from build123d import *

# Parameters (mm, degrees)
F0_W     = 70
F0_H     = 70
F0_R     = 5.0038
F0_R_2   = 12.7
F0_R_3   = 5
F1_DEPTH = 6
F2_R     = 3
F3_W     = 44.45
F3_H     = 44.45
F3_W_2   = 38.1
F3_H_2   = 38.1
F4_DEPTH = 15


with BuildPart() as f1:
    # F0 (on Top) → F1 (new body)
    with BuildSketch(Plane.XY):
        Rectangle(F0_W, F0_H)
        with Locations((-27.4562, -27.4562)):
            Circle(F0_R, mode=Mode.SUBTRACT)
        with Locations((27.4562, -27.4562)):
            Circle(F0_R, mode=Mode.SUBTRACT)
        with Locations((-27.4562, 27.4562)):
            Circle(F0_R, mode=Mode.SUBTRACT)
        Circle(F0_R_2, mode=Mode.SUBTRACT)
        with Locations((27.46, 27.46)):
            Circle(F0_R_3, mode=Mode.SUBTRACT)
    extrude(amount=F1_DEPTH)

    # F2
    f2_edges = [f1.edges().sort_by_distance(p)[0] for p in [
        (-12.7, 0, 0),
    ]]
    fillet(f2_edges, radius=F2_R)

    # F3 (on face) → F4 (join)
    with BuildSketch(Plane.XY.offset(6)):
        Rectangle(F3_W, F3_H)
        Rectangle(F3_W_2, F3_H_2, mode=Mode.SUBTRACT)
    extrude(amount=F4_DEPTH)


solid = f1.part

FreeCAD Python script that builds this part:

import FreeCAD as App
import Part
import Sketcher


def edges_at(feature, points):
    """Names of the edges that pass closest to the given points."""
    edges = feature.Shape.Edges
    near = lambda p: min(range(len(edges)), key=lambda i: edges[i].distToShape(Part.Vertex(*p))[0])
    return sorted({f"Edge{near(p) + 1}" for p in points})


def add_polygon(sketch, points):
    """Adds a closed chain of lines whose ends are joined by coincident constraints."""
    first, n = sketch.GeometryCount, len(points)
    for a, b in zip(points, points[1:] + points[:1]):
        sketch.addGeometry(Part.LineSegment(App.Vector(*a, 0), App.Vector(*b, 0)), False)
    for i in range(n):
        sketch.addConstraint(Sketcher.Constraint("Coincident", first + i, 2, first + (i + 1) % n, 1))

doc = App.newDocument("Part")
params = doc.addObject("Spreadsheet::Sheet", "Params")
for row, (alias, value) in enumerate([
    ("sketch1_diameter", "10 mm"),
    ("sketch1_diameter2", "25.4 mm"),
    ("sketch1_width", "70 mm"),
    ("pad1_length", "6 mm"),
    ("fillet_radius", "3 mm"),
    ("sketch2_width", "38.1 mm"),
    ("sketch2_width2", "44.45 mm"),
    ("pad2_length", "15 mm"),
], start=1):
    params.set(f"A{row}", alias)
    params.set(f"B{row}", "=" + value)
    params.setAlias(f"B{row}", alias)

body = doc.addObject("PartDesign::Body", "Body")

# Sketch on XY plane
sketch1 = doc.addObject("Sketcher::SketchObject", "Sketch")
body.addObject(sketch1)
sketch1.AttachmentSupport = (doc.XY_Plane, [""])
sketch1.MapMode = "FlatFace"
add_polygon(sketch1, [(-35, 35), (-35, -35), (35, -35), (35, 35)])  # lines 0-3
sketch1.addGeometry(Part.Circle(App.Vector(-27, -27, 0), App.Vector(0, 0, 1), 5), False)  # 4
sketch1.addGeometry(Part.Circle(App.Vector(27, -27, 0), App.Vector(0, 0, 1), 5), False)  # 5
sketch1.addGeometry(Part.Circle(App.Vector(-27, 27, 0), App.Vector(0, 0, 1), 5), False)  # 6
sketch1.addGeometry(Part.Circle(App.Vector(0, 0, 0), App.Vector(0, 0, 1), 13), False)  # 7
sketch1.addGeometry(Part.Circle(App.Vector(27, 27, 0), App.Vector(0, 0, 1), 5), False)  # 8
sketch1.addConstraint([
    Sketcher.Constraint("Vertical", 0),
    Sketcher.Constraint("Horizontal", 1),
    Sketcher.Constraint("Vertical", 2),
    Sketcher.Constraint("Horizontal", 3),
    Sketcher.Constraint("Coincident", 7, 3, -1, 1),
    Sketcher.Constraint("Equal", 4, 5),
    Sketcher.Constraint("Equal", 5, 6),
    Sketcher.Constraint("Symmetric", 5, 3, 6, 3, -1, 1),
    Sketcher.Constraint("Symmetric", 0, 2, 2, 2, -1, 1),
    Sketcher.Constraint("Symmetric", 4, 3, 5, 3, -2),
    Sketcher.Constraint("Equal", 3, 0),
    Sketcher.Constraint("Diameter", 8, 10.0),
    Sketcher.Constraint("Diameter", 7, 25.4),
    Sketcher.Constraint("DistanceX", 1, 1, 1, 2, 70.0),
    Sketcher.Constraint("Diameter", 4, 10.0076),
    Sketcher.Constraint("DistanceX", -1, 1, 8, 3, 27.46),
    Sketcher.Constraint("DistanceY", -1, 1, 8, 3, 27.46),
    Sketcher.Constraint("DistanceX", 4, 3, -1, 1, 27.4562),
    Sketcher.Constraint("DistanceY", 4, 3, -1, 1, 27.4562),
])
sketch1.setExpression("Constraints[15]", "Params.sketch1_diameter")
sketch1.setExpression("Constraints[16]", "Params.sketch1_diameter2")
sketch1.setExpression("Constraints[17]", "Params.sketch1_width")
pad1 = doc.addObject("PartDesign::Pad", "Pad")
body.addObject(pad1)
pad1.Profile = sketch1
pad1.setExpression("Length", "Params.pad1_length")
doc.recompute()

fillet = doc.addObject("PartDesign::Fillet", "Fillet")
body.addObject(fillet)
fillet.Base = (pad1, edges_at(pad1, [(-12.7, 0, 0)]))
fillet.setExpression("Radius", "Params.fillet_radius")

# Sketch on XY plane
sketch2 = doc.addObject("Sketcher::SketchObject", "Sketch001")
body.addObject(sketch2)
sketch2.AttachmentSupport = (doc.XY_Plane, [""])
sketch2.MapMode = "FlatFace"
sketch2.AttachmentOffset = App.Placement(App.Vector(0, 0, 6), App.Rotation())
add_polygon(sketch2, [(-22, 22), (-22, -22), (22, -22), (22, 22)])  # lines 0-3
add_polygon(sketch2, [(19, -19), (-19, -19), (-19, 19), (19, 19)])  # lines 4-7
sketch2.addConstraint([
    Sketcher.Constraint("Vertical", 0),
    Sketcher.Constraint("Horizontal", 1),
    Sketcher.Constraint("Vertical", 2),
    Sketcher.Constraint("Horizontal", 3),
    Sketcher.Constraint("Horizontal", 4),
    Sketcher.Constraint("Vertical", 5),
    Sketcher.Constraint("Horizontal", 6),
    Sketcher.Constraint("Vertical", 7),
    Sketcher.Constraint("Symmetric", 0, 2, 2, 2, -1, 1),
    Sketcher.Constraint("Symmetric", 4, 2, 6, 2, -1, 1),
    Sketcher.Constraint("Equal", 3, 0),
    Sketcher.Constraint("Equal", 6, 5),
    Sketcher.Constraint("DistanceX", 4, 2, 4, 1, 38.1),
    Sketcher.Constraint("DistanceX", 1, 1, 1, 2, 44.45),
])
sketch2.setExpression("Constraints[20]", "Params.sketch2_width")
sketch2.setExpression("Constraints[21]", "Params.sketch2_width2")
pad2 = doc.addObject("PartDesign::Pad", "Pad001")
body.addObject(pad2)
pad2.Profile = sketch2
pad2.setExpression("Length", "Params.pad2_length")

doc.recompute()
